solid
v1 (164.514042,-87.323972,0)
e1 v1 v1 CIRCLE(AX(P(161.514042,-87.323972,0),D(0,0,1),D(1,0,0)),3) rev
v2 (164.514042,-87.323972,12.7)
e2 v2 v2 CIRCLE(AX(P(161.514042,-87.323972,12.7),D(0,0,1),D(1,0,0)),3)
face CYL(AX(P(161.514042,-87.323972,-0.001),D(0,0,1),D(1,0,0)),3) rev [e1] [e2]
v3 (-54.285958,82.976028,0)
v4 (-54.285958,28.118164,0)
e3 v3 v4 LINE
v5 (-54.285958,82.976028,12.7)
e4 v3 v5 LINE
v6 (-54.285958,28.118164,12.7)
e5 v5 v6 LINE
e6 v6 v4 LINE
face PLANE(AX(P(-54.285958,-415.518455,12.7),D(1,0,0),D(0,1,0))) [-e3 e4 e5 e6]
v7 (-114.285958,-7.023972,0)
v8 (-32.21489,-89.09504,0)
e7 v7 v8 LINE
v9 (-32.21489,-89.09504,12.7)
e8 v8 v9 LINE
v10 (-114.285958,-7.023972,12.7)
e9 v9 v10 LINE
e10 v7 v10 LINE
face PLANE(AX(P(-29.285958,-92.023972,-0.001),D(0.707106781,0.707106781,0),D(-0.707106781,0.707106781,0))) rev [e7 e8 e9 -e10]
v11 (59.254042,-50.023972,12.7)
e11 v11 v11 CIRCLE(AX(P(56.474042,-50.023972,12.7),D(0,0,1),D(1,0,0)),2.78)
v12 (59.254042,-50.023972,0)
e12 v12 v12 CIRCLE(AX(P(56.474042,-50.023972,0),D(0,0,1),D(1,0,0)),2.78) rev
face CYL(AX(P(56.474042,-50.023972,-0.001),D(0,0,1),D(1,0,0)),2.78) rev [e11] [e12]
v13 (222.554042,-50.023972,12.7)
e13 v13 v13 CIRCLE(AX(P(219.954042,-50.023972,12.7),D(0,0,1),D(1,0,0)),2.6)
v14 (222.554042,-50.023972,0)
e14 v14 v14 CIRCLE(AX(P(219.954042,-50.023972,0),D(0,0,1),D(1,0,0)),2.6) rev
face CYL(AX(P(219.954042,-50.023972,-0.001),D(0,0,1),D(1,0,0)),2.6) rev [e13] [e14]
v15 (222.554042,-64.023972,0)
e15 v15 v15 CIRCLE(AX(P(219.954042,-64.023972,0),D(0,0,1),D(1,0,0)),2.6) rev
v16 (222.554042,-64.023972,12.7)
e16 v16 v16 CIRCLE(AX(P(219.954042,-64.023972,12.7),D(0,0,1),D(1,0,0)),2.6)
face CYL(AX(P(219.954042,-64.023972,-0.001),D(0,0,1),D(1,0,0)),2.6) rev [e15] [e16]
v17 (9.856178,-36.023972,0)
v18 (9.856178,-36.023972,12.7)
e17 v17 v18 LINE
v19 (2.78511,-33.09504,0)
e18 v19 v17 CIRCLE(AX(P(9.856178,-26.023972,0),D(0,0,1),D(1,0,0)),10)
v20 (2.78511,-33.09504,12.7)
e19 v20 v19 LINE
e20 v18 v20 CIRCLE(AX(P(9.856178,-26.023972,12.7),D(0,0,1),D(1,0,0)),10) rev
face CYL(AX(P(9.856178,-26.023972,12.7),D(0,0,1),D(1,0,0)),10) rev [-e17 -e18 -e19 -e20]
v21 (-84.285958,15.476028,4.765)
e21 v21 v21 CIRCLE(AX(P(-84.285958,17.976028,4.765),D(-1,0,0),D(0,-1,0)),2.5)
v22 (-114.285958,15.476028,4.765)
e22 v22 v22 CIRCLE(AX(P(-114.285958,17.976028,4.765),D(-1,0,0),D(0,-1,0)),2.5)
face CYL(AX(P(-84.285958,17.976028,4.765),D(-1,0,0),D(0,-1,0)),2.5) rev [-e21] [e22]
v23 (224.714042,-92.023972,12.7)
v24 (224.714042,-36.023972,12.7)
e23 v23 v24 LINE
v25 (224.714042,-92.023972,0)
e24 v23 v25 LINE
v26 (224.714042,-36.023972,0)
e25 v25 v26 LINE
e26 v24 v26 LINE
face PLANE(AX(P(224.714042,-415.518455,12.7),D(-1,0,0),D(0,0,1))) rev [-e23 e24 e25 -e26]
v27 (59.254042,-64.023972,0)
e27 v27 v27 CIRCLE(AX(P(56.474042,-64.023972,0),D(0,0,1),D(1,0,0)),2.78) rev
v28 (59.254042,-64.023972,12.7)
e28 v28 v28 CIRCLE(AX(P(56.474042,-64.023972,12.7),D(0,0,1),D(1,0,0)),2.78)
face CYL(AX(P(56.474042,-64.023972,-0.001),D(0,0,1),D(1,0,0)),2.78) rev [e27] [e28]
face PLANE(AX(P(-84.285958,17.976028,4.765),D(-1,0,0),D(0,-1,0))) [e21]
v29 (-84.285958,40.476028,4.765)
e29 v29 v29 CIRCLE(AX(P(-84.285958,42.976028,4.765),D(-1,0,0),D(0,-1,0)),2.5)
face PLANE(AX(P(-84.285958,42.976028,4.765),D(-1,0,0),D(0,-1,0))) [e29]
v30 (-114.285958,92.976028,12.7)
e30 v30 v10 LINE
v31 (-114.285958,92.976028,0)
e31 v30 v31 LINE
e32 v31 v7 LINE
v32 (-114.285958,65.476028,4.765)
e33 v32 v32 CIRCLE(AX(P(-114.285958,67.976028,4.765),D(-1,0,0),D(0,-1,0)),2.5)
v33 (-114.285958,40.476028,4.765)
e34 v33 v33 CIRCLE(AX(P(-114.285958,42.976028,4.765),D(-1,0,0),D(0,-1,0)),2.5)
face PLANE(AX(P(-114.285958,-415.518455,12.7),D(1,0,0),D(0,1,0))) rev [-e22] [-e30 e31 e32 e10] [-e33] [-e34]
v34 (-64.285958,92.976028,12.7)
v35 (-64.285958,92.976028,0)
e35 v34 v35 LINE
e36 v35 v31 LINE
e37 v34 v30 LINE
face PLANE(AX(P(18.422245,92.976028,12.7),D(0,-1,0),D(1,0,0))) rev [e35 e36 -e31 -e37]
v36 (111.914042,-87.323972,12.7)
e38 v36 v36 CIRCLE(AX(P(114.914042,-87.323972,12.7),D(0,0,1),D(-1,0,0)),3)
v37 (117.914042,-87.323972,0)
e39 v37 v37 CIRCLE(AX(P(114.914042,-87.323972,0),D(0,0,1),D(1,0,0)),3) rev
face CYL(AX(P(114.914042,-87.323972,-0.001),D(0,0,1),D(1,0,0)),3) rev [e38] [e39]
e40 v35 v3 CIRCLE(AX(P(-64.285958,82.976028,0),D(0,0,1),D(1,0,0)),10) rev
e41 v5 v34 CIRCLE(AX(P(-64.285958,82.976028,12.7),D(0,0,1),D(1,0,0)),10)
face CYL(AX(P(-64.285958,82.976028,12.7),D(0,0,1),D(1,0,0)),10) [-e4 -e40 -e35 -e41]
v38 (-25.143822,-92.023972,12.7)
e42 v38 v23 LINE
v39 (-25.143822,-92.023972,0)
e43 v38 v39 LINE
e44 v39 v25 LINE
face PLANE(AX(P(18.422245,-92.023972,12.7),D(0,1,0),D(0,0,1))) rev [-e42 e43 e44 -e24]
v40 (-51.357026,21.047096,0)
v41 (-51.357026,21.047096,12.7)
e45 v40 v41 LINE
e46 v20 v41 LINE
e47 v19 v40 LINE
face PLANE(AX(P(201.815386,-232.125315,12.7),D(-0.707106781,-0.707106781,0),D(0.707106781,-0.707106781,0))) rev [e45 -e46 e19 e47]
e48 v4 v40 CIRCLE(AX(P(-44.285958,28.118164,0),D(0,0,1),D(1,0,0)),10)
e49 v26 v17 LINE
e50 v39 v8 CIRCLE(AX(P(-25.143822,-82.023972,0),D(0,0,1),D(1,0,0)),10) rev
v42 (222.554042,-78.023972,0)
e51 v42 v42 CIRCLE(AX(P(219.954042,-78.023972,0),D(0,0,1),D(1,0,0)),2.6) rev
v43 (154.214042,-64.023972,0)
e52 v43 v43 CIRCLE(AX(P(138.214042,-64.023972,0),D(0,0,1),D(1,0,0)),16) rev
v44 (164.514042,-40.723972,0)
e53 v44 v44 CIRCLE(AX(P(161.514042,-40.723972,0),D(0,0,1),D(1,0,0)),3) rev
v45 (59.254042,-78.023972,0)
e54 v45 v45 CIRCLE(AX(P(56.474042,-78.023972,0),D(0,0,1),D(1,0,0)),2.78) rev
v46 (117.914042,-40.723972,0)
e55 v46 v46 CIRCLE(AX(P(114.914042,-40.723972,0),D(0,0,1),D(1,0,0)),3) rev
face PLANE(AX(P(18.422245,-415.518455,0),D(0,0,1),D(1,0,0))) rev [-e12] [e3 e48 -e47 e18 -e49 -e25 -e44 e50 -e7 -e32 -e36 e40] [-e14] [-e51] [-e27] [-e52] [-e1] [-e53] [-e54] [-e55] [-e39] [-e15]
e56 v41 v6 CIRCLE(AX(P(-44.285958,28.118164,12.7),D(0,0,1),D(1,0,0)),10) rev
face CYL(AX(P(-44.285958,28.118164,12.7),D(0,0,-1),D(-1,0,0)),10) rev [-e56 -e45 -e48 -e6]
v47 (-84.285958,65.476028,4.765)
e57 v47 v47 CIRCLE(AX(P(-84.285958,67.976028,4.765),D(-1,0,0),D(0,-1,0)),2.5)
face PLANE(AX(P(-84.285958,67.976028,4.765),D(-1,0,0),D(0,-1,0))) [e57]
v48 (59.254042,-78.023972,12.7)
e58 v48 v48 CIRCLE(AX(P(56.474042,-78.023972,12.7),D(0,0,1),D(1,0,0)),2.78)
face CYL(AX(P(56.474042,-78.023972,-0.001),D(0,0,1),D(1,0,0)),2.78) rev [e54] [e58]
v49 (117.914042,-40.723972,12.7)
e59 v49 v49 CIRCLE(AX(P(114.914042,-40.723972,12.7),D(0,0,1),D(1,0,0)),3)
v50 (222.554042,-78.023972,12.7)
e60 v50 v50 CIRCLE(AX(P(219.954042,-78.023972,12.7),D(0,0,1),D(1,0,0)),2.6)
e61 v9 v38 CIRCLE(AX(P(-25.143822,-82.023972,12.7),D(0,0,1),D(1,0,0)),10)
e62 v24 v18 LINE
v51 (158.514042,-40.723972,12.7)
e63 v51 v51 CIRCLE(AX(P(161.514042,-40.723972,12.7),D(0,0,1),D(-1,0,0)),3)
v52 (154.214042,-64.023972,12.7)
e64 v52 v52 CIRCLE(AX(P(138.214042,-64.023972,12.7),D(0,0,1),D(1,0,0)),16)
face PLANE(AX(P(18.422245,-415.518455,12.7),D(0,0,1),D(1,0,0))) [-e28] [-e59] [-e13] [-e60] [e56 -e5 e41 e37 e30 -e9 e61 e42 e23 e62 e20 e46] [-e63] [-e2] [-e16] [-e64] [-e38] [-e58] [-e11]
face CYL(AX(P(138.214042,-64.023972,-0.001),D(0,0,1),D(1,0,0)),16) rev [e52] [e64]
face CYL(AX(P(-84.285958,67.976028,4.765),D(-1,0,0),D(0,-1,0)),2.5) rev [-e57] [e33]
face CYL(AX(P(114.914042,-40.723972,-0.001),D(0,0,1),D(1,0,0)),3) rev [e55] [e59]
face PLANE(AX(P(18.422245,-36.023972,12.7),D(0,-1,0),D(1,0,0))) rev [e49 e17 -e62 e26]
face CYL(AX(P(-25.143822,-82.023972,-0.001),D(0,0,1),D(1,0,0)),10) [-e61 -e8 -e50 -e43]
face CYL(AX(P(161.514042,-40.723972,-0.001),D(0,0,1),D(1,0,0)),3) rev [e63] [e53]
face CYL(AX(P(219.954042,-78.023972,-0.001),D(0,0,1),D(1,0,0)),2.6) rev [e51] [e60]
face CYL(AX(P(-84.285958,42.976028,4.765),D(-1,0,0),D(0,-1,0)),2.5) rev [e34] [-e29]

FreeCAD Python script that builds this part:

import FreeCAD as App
import Part
import Sketcher

V = App.Vector
Q = App.Units.Quantity


def edges_at(feature, points):
    """Names of the edges that pass closest to the given points."""
    edges = feature.Shape.Edges
    near = lambda p: min(range(len(edges)), key=lambda i: edges[i].distToShape(Part.Vertex(*p))[0])
    return sorted({f"Edge{near(p) + 1}" for p in points})

doc = App.newDocument("Part")
body = doc.addObject("PartDesign::Body", "Body")

# Sketch on XY plane
sketch1 = body.newObject("Sketcher::SketchObject", "Sketch")
sketch1.AttachmentSupport = (doc.getObject("XY_Plane"), [""])
sketch1.MapMode = "FlatFace"
sketch1.addGeometry(Part.LineSegment(V(-114, -92, 0), V(225, -92, 0)), False)
sketch1.addGeometry(Part.LineSegment(V(225, -92, 0), V(225, -36, 0)), False)
sketch1.addGeometry(Part.LineSegment(V(225, -36, 0), V(6, -36, 0)), False)
sketch1.addGeometry(Part.LineSegment(V(6, -36, 0), V(-54, 24, 0)), False)
sketch1.addGeometry(Part.LineSegment(V(-54, 24, 0), V(-54, 93, 0)), False)
sketch1.addGeometry(Part.LineSegment(V(-54, 93, 0), V(-114, 93, 0)), False)
sketch1.addGeometry(Part.LineSegment(V(-114, 93, 0), V(-114, -92, 0)), False)
sketch1.addConstraint(Sketcher.Constraint("Coincident", 0, 2, 1, 1))
sketch1.addConstraint(Sketcher.Constraint("Coincident", 1, 2, 2, 1))
sketch1.addConstraint(Sketcher.Constraint("Coincident", 2, 2, 3, 1))
sketch1.addConstraint(Sketcher.Constraint("Coincident", 3, 2, 4, 1))
sketch1.addConstraint(Sketcher.Constraint("Coincident", 4, 2, 5, 1))
sketch1.addConstraint(Sketcher.Constraint("Coincident", 5, 2, 6, 1))
sketch1.addConstraint(Sketcher.Constraint("Coincident", 6, 2, 0, 1))
sketch1.addConstraint(Sketcher.Constraint("Horizontal", 0))
sketch1.addConstraint(Sketcher.Constraint("Vertical", 1))
sketch1.addConstraint(Sketcher.Constraint("Horizontal", 2))
sketch1.addConstraint(Sketcher.Constraint("Vertical", 4))
sketch1.addConstraint(Sketcher.Constraint("Horizontal", 5))
sketch1.addConstraint(Sketcher.Constraint("Vertical", 6))
sketch1.addConstraint(Sketcher.Constraint("DistanceX", 0, 1, 0, 2, Q("339 mm")))
sketch1.addConstraint(Sketcher.Constraint("DistanceX", 2, 2, 2, 1, Q("219 mm")))
sketch1.addConstraint(Sketcher.Constraint("DistanceX", 5, 2, 5, 1, Q("60 mm")))
sketch1.addConstraint(Sketcher.Constraint("DistanceY", 1, 1, 1, 2, Q("56 mm")))
sketch1.addConstraint(Sketcher.Constraint("DistanceY", 4, 1, 4, 2, Q("69 mm")))
sketch1.addConstraint(Sketcher.Constraint("DistanceY", 6, 2, 6, 1, Q("185 mm")))
sketch1.addConstraint(Sketcher.Constraint("DistanceY", 0, 2, -1, 1, Q("92.023972 mm")))
sketch1.addConstraint(Sketcher.Constraint("DistanceX", -1, 1, 0, 2, Q("224.714042 mm")))
pad1 = body.newObject("PartDesign::Pad", "Pad")
pad1.Profile = sketch1
pad1.Length = 12.7

# Sketch on XY plane
sketch2 = body.newObject("Sketcher::SketchObject", "Sketch001")
sketch2.AttachmentSupport = (doc.getObject("XY_Plane"), [""])
sketch2.MapMode = "FlatFace"
sketch2.AttachmentOffset = App.Placement(V(0, 0, 12.7), App.Rotation())
sketch2.addGeometry(Part.Circle(V(138, -64, 0), V(0, 0, 1), 16), False)
sketch2.addConstraint(Sketcher.Constraint("Diameter", 0, Q("32 mm")))
sketch2.addConstraint(Sketcher.Constraint("DistanceY", 0, 3, -1, 1, Q("64.023972 mm")))
sketch2.addConstraint(Sketcher.Constraint("DistanceX", -1, 1, 0, 3, Q("138.214042 mm")))
pocket1 = body.newObject("PartDesign::Pocket", "Pocket")
pocket1.Profile = sketch2
pocket1.Type = "UpToFirst"

# Sketch on XY plane
sketch3 = body.newObject("Sketcher::SketchObject", "Sketch002")
sketch3.AttachmentSupport = (doc.getObject("XY_Plane"), [""])
sketch3.MapMode = "FlatFace"
sketch3.AttachmentOffset = App.Placement(V(0, 0, 12.7), App.Rotation())
sketch3.addGeometry(Part.Circle(V(114.9, -40.7, 0), V(0, 0, 1), 3), False)
sketch3.addConstraint(Sketcher.Constraint("Diameter", 0, Q("6 mm")))
sketch3.addConstraint(Sketcher.Constraint("DistanceY", 0, 3, -1, 1, Q("40.723972 mm")))
sketch3.addConstraint(Sketcher.Constraint("DistanceX", -1, 1, 0, 3, Q("114.914042 mm")))
pocket2 = body.newObject("PartDesign::Pocket", "Pocket001")
pocket2.Profile = sketch3
pocket2.Type = "UpToFirst"

# Sketch on XY plane
sketch4 = body.newObject("Sketcher::SketchObject", "Sketch003")
sketch4.AttachmentSupport = (doc.getObject("XY_Plane"), [""])
sketch4.MapMode = "FlatFace"
sketch4.AttachmentOffset = App.Placement(V(0, 0, 12.7), App.Rotation())
sketch4.addGeometry(Part.Circle(V(161.5, -40.7, 0), V(0, 0, 1), 3), False)
sketch4.addConstraint(Sketcher.Constraint("Diameter", 0, Q("6 mm")))
sketch4.addConstraint(Sketcher.Constraint("DistanceY", 0, 3, -1, 1, Q("40.723972 mm")))
sketch4.addConstraint(Sketcher.Constraint("DistanceX", -1, 1, 0, 3, Q("161.514042 mm")))
pocket3 = body.newObject("PartDesign::Pocket", "Pocket002")
pocket3.Profile = sketch4
pocket3.Type = "UpToFirst"

# Sketch on XY plane
sketch5 = body.newObject("Sketcher::SketchObject", "Sketch004")
sketch5.AttachmentSupport = (doc.getObject("XY_Plane"), [""])
sketch5.MapMode = "FlatFace"
sketch5.AttachmentOffset = App.Placement(V(0, 0, 12.7), App.Rotation())
sketch5.addGeometry(Part.Circle(V(161.5, -87.3, 0), V(0, 0, 1), 3), False)
sketch5.addConstraint(Sketcher.Constraint("Diameter", 0, Q("6 mm")))
sketch5.addConstraint(Sketcher.Constraint("DistanceY", 0, 3, -1, 1, Q("87.323972 mm")))
sketch5.addConstraint(Sketcher.Constraint("DistanceX", -1, 1, 0, 3, Q("161.514042 mm")))
pocket4 = body.newObject("PartDesign::Pocket", "Pocket003")
pocket4.Profile = sketch5
pocket4.Type = "UpToFirst"

# Sketch on XY plane
sketch6 = body.newObject("Sketcher::SketchObject", "Sketch005")
sketch6.AttachmentSupport = (doc.getObject("XY_Plane"), [""])
sketch6.MapMode = "FlatFace"
sketch6.AttachmentOffset = App.Placement(V(0, 0, 12.7), App.Rotation())
sketch6.addGeometry(Part.Circle(V(114.9, -87.3, 0), V(0, 0, 1), 3), False)
sketch6.addConstraint(Sketcher.Constraint("Diameter", 0, Q("6 mm")))
sketch6.addConstraint(Sketcher.Constraint("DistanceY", 0, 3, -1, 1, Q("87.323972 mm")))
sketch6.addConstraint(Sketcher.Constraint("DistanceX", -1, 1, 0, 3, Q("114.914042 mm")))
pocket5 = body.newObject("PartDesign::Pocket", "Pocket004")
pocket5.Profile = sketch6
pocket5.Type = "UpToFirst"

# Sketch on YZ plane
sketch7 = body.newObject("Sketcher::SketchObject", "Sketch006")
sketch7.AttachmentSupport = (doc.getObject("YZ_Plane"), [""])
sketch7.MapMode = "FlatFace"
sketch7.AttachmentOffset = App.Placement(V(0, 0, -114.285958), App.Rotation())
sketch7.addGeometry(Part.Circle(V(68, 4.8, 0), V(0, 0, 1), 2.5), False)
sketch7.addGeometry(Part.Circle(V(43, 4.8, 0), V(0, 0, 1), 2.5), False)
sketch7.addGeometry(Part.Circle(V(18, 4.8, 0), V(0, 0, 1), 2.5), False)
sketch7.addConstraint(Sketcher.Constraint("Equal", 0, 1))
sketch7.addConstraint(Sketcher.Constraint("Equal", 1, 2))
sketch7.addConstraint(Sketcher.Constraint("Horizontal", 0, 3, 1, 3))
sketch7.addConstraint(Sketcher.Constraint("Horizontal", 1, 3, 2, 3))
sketch7.addConstraint(Sketcher.Constraint("Diameter", 0, Q("5 mm")))
sketch7.addConstraint(Sketcher.Constraint("DistanceX", 1, 3, 0, 3, Q("25 mm")))
sketch7.addConstraint(Sketcher.Constraint("DistanceX", 2, 3, 1, 3, Q("25 mm")))
sketch7.addConstraint(Sketcher.Constraint("DistanceY", -1, 1, 0, 3, Q("4.765 mm")))
sketch7.addConstraint(Sketcher.Constraint("DistanceX", -1, 1, 0, 3, Q("67.976028 mm")))
pocket6 = body.newObject("PartDesign::Pocket", "Pocket005")
pocket6.Profile = sketch7
pocket6.Length = 30
pocket6.Reversed = True

# Sketch on XY plane
sketch8 = body.newObject("Sketcher::SketchObject", "Sketch007")
sketch8.AttachmentSupport = (doc.getObject("XY_Plane"), [""])
sketch8.MapMode = "FlatFace"
sketch8.AttachmentOffset = App.Placement(V(0, 0, 12.7), App.Rotation())
sketch8.addGeometry(Part.LineSegment(V(-29, -92, 0), V(-114, -7, 0)), False)
sketch8.addGeometry(Part.LineSegment(V(-114, -7, 0), V(-114, -92, 0)), False)
sketch8.addGeometry(Part.LineSegment(V(-114, -92, 0), V(-29, -92, 0)), False)
sketch8.addConstraint(Sketcher.Constraint("Coincident", 0, 2, 1, 1))
sketch8.addConstraint(Sketcher.Constraint("Coincident", 1, 2, 2, 1))
sketch8.addConstraint(Sketcher.Constraint("Coincident", 2, 2, 0, 1))
sketch8.addConstraint(Sketcher.Constraint("Vertical", 1))
sketch8.addConstraint(Sketcher.Constraint("Horizontal", 2))
sketch8.addConstraint(Sketcher.Constraint("Equal", 2, 1))
sketch8.addConstraint(Sketcher.Constraint("DistanceX", 2, 1, 2, 2, Q("85 mm")))
sketch8.addConstraint(Sketcher.Constraint("DistanceY", 0, 2, -1, 1, Q("7.023972 mm")))
sketch8.addConstraint(Sketcher.Constraint("DistanceX", 0, 2, -1, 1, Q("114.285958 mm")))
pocket7 = body.newObject("PartDesign::Pocket", "Pocket006")
pocket7.Profile = sketch8
pocket7.Type = "UpToFirst"

# Sketch on XY plane
sketch9 = body.newObject("Sketcher::SketchObject", "Sketch008")
sketch9.AttachmentSupport = (doc.getObject("XY_Plane"), [""])
sketch9.MapMode = "FlatFace"
sketch9.AttachmentOffset = App.Placement(V(0, 0, 12.7), App.Rotation())
sketch9.addGeometry(Part.Circle(V(56.5, -50, 0), V(0, 0, 1), 2.8), False)
sketch9.addConstraint(Sketcher.Constraint("Diameter", 0, Q("5.56 mm")))
sketch9.addConstraint(Sketcher.Constraint("DistanceY", 0, 3, -1, 1, Q("50.023972 mm")))
sketch9.addConstraint(Sketcher.Constraint("DistanceX", -1, 1, 0, 3, Q("56.474042 mm")))
pocket8 = body.newObject("PartDesign::Pocket", "Pocket007")
pocket8.Profile = sketch9
pocket8.Type = "UpToFirst"

# Sketch on XY plane
sketch10 = body.newObject("Sketcher::SketchObject", "Sketch009")
sketch10.AttachmentSupport = (doc.getObject("XY_Plane"), [""])
sketch10.MapMode = "FlatFace"
sketch10.AttachmentOffset = App.Placement(V(0, 0, 12.7), App.Rotation())
sketch10.addGeometry(Part.Circle(V(56.5, -64, 0), V(0, 0, 1), 2.8), False)
sketch10.addConstraint(Sketcher.Constraint("Diameter", 0, Q("5.56 mm")))
sketch10.addConstraint(Sketcher.Constraint("DistanceY", 0, 3, -1, 1, Q("64.023972 mm")))
sketch10.addConstraint(Sketcher.Constraint("DistanceX", -1, 1, 0, 3, Q("56.474042 mm")))
pocket9 = body.newObject("PartDesign::Pocket", "Pocket008")
pocket9.Profile = sketch10
pocket9.Type = "UpToFirst"

# Sketch on XY plane
sketch11 = body.newObject("Sketcher::SketchObject", "Sketch010")
sketch11.AttachmentSupport = (doc.getObject("XY_Plane"), [""])
sketch11.MapMode = "FlatFace"
sketch11.AttachmentOffset = App.Placement(V(0, 0, 12.7), App.Rotation())
sketch11.addGeometry(Part.Circle(V(56.5, -78, 0), V(0, 0, 1), 2.8), False)
sketch11.addConstraint(Sketcher.Constraint("Diameter", 0, Q("5.56 mm")))
sketch11.addConstraint(Sketcher.Constraint("DistanceY", 0, 3, -1, 1, Q("78.023972 mm")))
sketch11.addConstraint(Sketcher.Constraint("DistanceX", -1, 1, 0, 3, Q("56.474042 mm")))
pocket10 = body.newObject("PartDesign::Pocket", "Pocket009")
pocket10.Profile = sketch11
pocket10.Type = "UpToFirst"

# Sketch on XY plane
sketch12 = body.newObject("Sketcher::SketchObject", "Sketch011")
sketch12.AttachmentSupport = (doc.getObject("XY_Plane"), [""])
sketch12.MapMode = "FlatFace"
sketch12.AttachmentOffset = App.Placement(V(0, 0, 12.7), App.Rotation())
sketch12.addGeometry(Part.Circle(V(220, -50, 0), V(0, 0, 1), 2.6), False)
sketch12.addConstraint(Sketcher.Constraint("Diameter", 0, Q("5.2 mm")))
sketch12.addConstraint(Sketcher.Constraint("DistanceY", 0, 3, -1, 1, Q("50.023972 mm")))
sketch12.addConstraint(Sketcher.Constraint("DistanceX", -1, 1, 0, 3, Q("219.954042 mm")))
pocket11 = body.newObject("PartDesign::Pocket", "Pocket010")
pocket11.Profile = sketch12
pocket11.Type = "UpToFirst"

# Sketch on XY plane
sketch13 = body.newObject("Sketcher::SketchObject", "Sketch012")
sketch13.AttachmentSupport = (doc.getObject("XY_Plane"), [""])
sketch13.MapMode = "FlatFace"
sketch13.AttachmentOffset = App.Placement(V(0, 0, 12.7), App.Rotation())
sketch13.addGeometry(Part.Circle(V(220, -64, 0), V(0, 0, 1), 2.6), False)
sketch13.addConstraint(Sketcher.Constraint("Diameter", 0, Q("5.2 mm")))
sketch13.addConstraint(Sketcher.Constraint("DistanceY", 0, 3, -1, 1, Q("64.023972 mm")))
sketch13.addConstraint(Sketcher.Constraint("DistanceX", -1, 1, 0, 3, Q("219.954042 mm")))
pocket12 = body.newObject("PartDesign::Pocket", "Pocket011")
pocket12.Profile = sketch13
pocket12.Type = "UpToFirst"

# Sketch on XY plane
sketch14 = body.newObject("Sketcher::SketchObject", "Sketch013")
sketch14.AttachmentSupport = (doc.getObject("XY_Plane"), [""])
sketch14.MapMode = "FlatFace"
sketch14.AttachmentOffset = App.Placement(V(0, 0, 12.7), App.Rotation())
sketch14.addGeometry(Part.Circle(V(220, -78, 0), V(0, 0, 1), 2.6), False)
sketch14.addConstraint(Sketcher.Constraint("Diameter", 0, Q("5.2 mm")))
sketch14.addConstraint(Sketcher.Constraint("DistanceY", 0, 3, -1, 1, Q("78.023972 mm")))
sketch14.addConstraint(Sketcher.Constraint("DistanceX", -1, 1, 0, 3, Q("219.954042 mm")))
pocket13 = body.newObject("PartDesign::Pocket", "Pocket012")
pocket13.Profile = sketch14
pocket13.Type = "UpToFirst"
doc.recompute()

fillet = body.newObject("PartDesign::Fillet", "Fillet")
fillet.Base = (pocket13, edges_at(pocket13, [
    (-54.286, 92.976, 6.35),
    (-54.286, 23.976, 6.35),
    (5.714, -36.024, 6.35),
    (-29.286, -92.024, 6.35),
]))
fillet.Radius = 10

doc.recompute()
